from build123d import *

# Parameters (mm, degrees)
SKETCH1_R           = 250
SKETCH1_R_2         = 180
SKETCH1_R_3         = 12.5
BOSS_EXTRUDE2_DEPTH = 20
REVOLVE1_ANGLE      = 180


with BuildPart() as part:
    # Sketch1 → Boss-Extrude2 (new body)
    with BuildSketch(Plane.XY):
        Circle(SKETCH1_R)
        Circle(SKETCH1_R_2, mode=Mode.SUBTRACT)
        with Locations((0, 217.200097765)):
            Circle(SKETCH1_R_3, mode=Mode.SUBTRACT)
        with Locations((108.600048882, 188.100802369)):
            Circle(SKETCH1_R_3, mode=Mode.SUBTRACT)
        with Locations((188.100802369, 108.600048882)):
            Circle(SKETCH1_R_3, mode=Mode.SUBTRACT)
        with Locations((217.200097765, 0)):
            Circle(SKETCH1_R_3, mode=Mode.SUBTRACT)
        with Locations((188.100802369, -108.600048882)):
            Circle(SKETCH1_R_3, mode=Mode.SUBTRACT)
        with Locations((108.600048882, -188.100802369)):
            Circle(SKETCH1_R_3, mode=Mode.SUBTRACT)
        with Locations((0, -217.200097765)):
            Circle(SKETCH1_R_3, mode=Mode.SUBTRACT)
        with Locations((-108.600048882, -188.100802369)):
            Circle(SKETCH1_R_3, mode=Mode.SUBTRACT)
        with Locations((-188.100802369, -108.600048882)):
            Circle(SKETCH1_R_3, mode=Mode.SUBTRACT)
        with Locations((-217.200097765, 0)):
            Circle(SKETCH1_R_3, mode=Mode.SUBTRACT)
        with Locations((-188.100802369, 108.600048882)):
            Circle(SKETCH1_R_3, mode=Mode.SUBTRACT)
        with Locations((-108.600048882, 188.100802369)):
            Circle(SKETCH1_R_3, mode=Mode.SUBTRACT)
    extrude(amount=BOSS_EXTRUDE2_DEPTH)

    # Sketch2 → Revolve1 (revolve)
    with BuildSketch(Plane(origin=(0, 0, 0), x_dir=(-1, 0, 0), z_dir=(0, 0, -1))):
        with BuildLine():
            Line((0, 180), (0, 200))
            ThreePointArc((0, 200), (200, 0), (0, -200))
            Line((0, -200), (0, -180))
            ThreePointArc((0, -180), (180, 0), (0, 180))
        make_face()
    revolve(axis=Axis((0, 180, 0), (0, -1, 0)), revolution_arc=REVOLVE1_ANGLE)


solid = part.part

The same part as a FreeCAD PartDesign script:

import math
import FreeCAD as App
import Part
import Sketcher
from FreeCAD import Vector
Q = App.Units.Quantity

doc = App.newDocument("Part")
body = doc.addObject("PartDesign::Body", "Body")

# Sketch on XY plane
sketch1 = body.newObject("Sketcher::SketchObject", "Sketch")
sketch1.AttachmentSupport = (doc.getObject("XY_Plane"), [""])
sketch1.MapMode = "FlatFace"
sketch1.addGeometry(Part.Circle(Vector(0, 0, 0), Vector(0, 0, 1), 250), False)
sketch1.addGeometry(Part.Circle(Vector(-108.600049, -188.100802, 0), Vector(0, 0, 1), 12.5), False)
sketch1.addGeometry(Part.Circle(Vector(-188.100802, -108.600049, 0), Vector(0, 0, 1), 12.5), False)
sketch1.addGeometry(Part.Circle(Vector(0, -217.200098, 0), Vector(0, 0, 1), 12.5), False)
sketch1.addGeometry(Part.Circle(Vector(108.600049, -188.100802, 0), Vector(0, 0, 1), 12.5), False)
sketch1.addGeometry(Part.Circle(Vector(188.100802, -108.600049, 0), Vector(0, 0, 1), 12.5), False)
sketch1.addGeometry(Part.Circle(Vector(-217.200098, 0, 0), Vector(0, 0, 1), 12.5), False)
sketch1.addGeometry(Part.Circle(Vector(-188.100802, 108.600049, 0), Vector(0, 0, 1), 12.5), False)
sketch1.addGeometry(Part.Circle(Vector(-108.600049, 188.100802, 0), Vector(0, 0, 1), 12.5), False)
sketch1.addGeometry(Part.Circle(Vector(0, 0, 0), Vector(0, 0, 1), 180), False)
sketch1.addGeometry(Part.Circle(Vector(217.200098, 0, 0), Vector(0, 0, 1), 12.5), False)
sketch1.addGeometry(Part.Circle(Vector(188.100802, 108.600049, 0), Vector(0, 0, 1), 12.5), False)
sketch1.addGeometry(Part.Circle(Vector(0, 217.200098, 0), Vector(0, 0, 1), 12.5), False)
sketch1.addGeometry(Part.Circle(Vector(108.600049, 188.100802, 0), Vector(0, 0, 1), 12.5), False)
sketch1.addConstraint(Sketcher.Constraint("Coincident", 0, 3, -1, 1))
sketch1.addConstraint(Sketcher.Constraint("Coincident", 9, 3, -1, 1))
sketch1.addConstraint(Sketcher.Constraint("Equal", 1, 2))
sketch1.addConstraint(Sketcher.Constraint("Equal", 2, 3))
sketch1.addConstraint(Sketcher.Constraint("Equal", 3, 4))
sketch1.addConstraint(Sketcher.Constraint("Equal", 4, 5))
sketch1.addConstraint(Sketcher.Constraint("Equal", 5, 6))
sketch1.addConstraint(Sketcher.Constraint("Equal", 6, 7))
sketch1.addConstraint(Sketcher.Constraint("Equal", 7, 8))
sketch1.addConstraint(Sketcher.Constraint("Equal", 8, 10))
sketch1.addConstraint(Sketcher.Constraint("Equal", 10, 11))
sketch1.addConstraint(Sketcher.Constraint("Equal", 11, 12))
sketch1.addConstraint(Sketcher.Constraint("Equal", 12, 13))
sketch1.addConstraint(Sketcher.Constraint("Symmetric", 5, 3, 7, 3, -1, 1))
sketch1.addConstraint(Sketcher.Constraint("Symmetric", 4, 3, 8, 3, -1, 1))
sketch1.addConstraint(Sketcher.Constraint("Symmetric", 6, 3, 10, 3, -1, 1))
sketch1.addConstraint(Sketcher.Constraint("Symmetric", 2, 3, 11, 3, -1, 1))
sketch1.addConstraint(Sketcher.Constraint("Symmetric", 3, 3, 12, 3, -1, 1))
sketch1.addConstraint(Sketcher.Constraint("Symmetric", 1, 3, 13, 3, -1, 1))
sketch1.addConstraint(Sketcher.Constraint("Symmetric", 1, 3, 4, 3, -2))
sketch1.addConstraint(Sketcher.Constraint("Symmetric", 2, 3, 5, 3, -2))
sketch1.addConstraint(Sketcher.Constraint("PointOnObject", 3, 3, -2))
sketch1.addConstraint(Sketcher.Constraint("PointOnObject", 6, 3, -1))
sketch1.addConstraint(Sketcher.Constraint("Diameter", 0, Q("500 mm")))
sketch1.addConstraint(Sketcher.Constraint("Diameter", 1, Q("25 mm")))
sketch1.addConstraint(Sketcher.Constraint("Diameter", 9, Q("360 mm")))
sketch1.addConstraint(Sketcher.Constraint("DistanceX", 1, 3, -1, 1, Q("108.600049 mm")))
sketch1.addConstraint(Sketcher.Constraint("DistanceY", 2, 3, -1, 1, Q("108.600049 mm")))
sketch1.addConstraint(Sketcher.Constraint("DistanceY", 3, 3, 2, 3, Q("108.600049 mm")))
sketch1.addConstraint(Sketcher.Constraint("DistanceX", 2, 3, 4, 3, Q("296.700851 mm")))
sketch1.addConstraint(Sketcher.Constraint("DistanceX", 6, 3, 1, 3, Q("108.600049 mm")))
sketch1.addConstraint(Sketcher.Constraint("DistanceY", 1, 3, 7, 3, Q("296.700851 mm")))
pad1 = body.newObject("PartDesign::Pad", "Pad")
pad1.Profile = sketch1
pad1.Length = 20

# Sketch on XY plane
sketch2 = body.newObject("Sketcher::SketchObject", "Sketch001")
sketch2.AttachmentSupport = (doc.getObject("XY_Plane"), [""])
sketch2.MapMode = "FlatFace"
sketch2.addGeometry(Part.LineSegment(Vector(0, 200, 0), Vector(0, 180, 0)), False)
sketch2.addGeometry(Part.ArcOfCircle(Part.Circle(Vector(0, 0, 0), Vector(0, 0, 1), 180), math.radians(90), math.radians(270)), False)
sketch2.addGeometry(Part.LineSegment(Vector(0, -180, 0), Vector(0, -200, 0)), False)
sketch2.addGeometry(Part.ArcOfCircle(Part.Circle(Vector(0, 0, 0), Vector(0, 0, 1), 200), math.radians(90), math.radians(270)), False)
sketch2.addConstraint(Sketcher.Constraint("Coincident", 0, 2, 1, 1))
sketch2.addConstraint(Sketcher.Constraint("Coincident", 1, 2, 2, 1))
sketch2.addConstraint(Sketcher.Constraint("Coincident", 2, 2, 3, 2))
sketch2.addConstraint(Sketcher.Constraint("Coincident", 3, 1, 0, 1))
sketch2.addConstraint(Sketcher.Constraint("Vertical", 0))
sketch2.addConstraint(Sketcher.Constraint("Vertical", 2))
sketch2.addConstraint(Sketcher.Constraint("Coincident", 1, 3, -1, 1))
sketch2.addConstraint(Sketcher.Constraint("Coincident", 3, 3, -1, 1))
sketch2.addConstraint(Sketcher.Constraint("PointOnObject", 0, 2, -2))
sketch2.addConstraint(Sketcher.Constraint("PointOnObject", 1, 2, -2))
sketch2.addConstraint(Sketcher.Constraint("Radius", 1, Q("180 mm")))
sketch2.addConstraint(Sketcher.Constraint("Radius", 3, Q("200 mm")))
revolution = body.newObject("PartDesign::Revolution", "Revolution")
revolution.Profile = sketch2
revolution.ReferenceAxis = (sketch2, ["V_Axis"])
revolution.Angle = 180
revolution.Reversed = True

doc.recompute()
